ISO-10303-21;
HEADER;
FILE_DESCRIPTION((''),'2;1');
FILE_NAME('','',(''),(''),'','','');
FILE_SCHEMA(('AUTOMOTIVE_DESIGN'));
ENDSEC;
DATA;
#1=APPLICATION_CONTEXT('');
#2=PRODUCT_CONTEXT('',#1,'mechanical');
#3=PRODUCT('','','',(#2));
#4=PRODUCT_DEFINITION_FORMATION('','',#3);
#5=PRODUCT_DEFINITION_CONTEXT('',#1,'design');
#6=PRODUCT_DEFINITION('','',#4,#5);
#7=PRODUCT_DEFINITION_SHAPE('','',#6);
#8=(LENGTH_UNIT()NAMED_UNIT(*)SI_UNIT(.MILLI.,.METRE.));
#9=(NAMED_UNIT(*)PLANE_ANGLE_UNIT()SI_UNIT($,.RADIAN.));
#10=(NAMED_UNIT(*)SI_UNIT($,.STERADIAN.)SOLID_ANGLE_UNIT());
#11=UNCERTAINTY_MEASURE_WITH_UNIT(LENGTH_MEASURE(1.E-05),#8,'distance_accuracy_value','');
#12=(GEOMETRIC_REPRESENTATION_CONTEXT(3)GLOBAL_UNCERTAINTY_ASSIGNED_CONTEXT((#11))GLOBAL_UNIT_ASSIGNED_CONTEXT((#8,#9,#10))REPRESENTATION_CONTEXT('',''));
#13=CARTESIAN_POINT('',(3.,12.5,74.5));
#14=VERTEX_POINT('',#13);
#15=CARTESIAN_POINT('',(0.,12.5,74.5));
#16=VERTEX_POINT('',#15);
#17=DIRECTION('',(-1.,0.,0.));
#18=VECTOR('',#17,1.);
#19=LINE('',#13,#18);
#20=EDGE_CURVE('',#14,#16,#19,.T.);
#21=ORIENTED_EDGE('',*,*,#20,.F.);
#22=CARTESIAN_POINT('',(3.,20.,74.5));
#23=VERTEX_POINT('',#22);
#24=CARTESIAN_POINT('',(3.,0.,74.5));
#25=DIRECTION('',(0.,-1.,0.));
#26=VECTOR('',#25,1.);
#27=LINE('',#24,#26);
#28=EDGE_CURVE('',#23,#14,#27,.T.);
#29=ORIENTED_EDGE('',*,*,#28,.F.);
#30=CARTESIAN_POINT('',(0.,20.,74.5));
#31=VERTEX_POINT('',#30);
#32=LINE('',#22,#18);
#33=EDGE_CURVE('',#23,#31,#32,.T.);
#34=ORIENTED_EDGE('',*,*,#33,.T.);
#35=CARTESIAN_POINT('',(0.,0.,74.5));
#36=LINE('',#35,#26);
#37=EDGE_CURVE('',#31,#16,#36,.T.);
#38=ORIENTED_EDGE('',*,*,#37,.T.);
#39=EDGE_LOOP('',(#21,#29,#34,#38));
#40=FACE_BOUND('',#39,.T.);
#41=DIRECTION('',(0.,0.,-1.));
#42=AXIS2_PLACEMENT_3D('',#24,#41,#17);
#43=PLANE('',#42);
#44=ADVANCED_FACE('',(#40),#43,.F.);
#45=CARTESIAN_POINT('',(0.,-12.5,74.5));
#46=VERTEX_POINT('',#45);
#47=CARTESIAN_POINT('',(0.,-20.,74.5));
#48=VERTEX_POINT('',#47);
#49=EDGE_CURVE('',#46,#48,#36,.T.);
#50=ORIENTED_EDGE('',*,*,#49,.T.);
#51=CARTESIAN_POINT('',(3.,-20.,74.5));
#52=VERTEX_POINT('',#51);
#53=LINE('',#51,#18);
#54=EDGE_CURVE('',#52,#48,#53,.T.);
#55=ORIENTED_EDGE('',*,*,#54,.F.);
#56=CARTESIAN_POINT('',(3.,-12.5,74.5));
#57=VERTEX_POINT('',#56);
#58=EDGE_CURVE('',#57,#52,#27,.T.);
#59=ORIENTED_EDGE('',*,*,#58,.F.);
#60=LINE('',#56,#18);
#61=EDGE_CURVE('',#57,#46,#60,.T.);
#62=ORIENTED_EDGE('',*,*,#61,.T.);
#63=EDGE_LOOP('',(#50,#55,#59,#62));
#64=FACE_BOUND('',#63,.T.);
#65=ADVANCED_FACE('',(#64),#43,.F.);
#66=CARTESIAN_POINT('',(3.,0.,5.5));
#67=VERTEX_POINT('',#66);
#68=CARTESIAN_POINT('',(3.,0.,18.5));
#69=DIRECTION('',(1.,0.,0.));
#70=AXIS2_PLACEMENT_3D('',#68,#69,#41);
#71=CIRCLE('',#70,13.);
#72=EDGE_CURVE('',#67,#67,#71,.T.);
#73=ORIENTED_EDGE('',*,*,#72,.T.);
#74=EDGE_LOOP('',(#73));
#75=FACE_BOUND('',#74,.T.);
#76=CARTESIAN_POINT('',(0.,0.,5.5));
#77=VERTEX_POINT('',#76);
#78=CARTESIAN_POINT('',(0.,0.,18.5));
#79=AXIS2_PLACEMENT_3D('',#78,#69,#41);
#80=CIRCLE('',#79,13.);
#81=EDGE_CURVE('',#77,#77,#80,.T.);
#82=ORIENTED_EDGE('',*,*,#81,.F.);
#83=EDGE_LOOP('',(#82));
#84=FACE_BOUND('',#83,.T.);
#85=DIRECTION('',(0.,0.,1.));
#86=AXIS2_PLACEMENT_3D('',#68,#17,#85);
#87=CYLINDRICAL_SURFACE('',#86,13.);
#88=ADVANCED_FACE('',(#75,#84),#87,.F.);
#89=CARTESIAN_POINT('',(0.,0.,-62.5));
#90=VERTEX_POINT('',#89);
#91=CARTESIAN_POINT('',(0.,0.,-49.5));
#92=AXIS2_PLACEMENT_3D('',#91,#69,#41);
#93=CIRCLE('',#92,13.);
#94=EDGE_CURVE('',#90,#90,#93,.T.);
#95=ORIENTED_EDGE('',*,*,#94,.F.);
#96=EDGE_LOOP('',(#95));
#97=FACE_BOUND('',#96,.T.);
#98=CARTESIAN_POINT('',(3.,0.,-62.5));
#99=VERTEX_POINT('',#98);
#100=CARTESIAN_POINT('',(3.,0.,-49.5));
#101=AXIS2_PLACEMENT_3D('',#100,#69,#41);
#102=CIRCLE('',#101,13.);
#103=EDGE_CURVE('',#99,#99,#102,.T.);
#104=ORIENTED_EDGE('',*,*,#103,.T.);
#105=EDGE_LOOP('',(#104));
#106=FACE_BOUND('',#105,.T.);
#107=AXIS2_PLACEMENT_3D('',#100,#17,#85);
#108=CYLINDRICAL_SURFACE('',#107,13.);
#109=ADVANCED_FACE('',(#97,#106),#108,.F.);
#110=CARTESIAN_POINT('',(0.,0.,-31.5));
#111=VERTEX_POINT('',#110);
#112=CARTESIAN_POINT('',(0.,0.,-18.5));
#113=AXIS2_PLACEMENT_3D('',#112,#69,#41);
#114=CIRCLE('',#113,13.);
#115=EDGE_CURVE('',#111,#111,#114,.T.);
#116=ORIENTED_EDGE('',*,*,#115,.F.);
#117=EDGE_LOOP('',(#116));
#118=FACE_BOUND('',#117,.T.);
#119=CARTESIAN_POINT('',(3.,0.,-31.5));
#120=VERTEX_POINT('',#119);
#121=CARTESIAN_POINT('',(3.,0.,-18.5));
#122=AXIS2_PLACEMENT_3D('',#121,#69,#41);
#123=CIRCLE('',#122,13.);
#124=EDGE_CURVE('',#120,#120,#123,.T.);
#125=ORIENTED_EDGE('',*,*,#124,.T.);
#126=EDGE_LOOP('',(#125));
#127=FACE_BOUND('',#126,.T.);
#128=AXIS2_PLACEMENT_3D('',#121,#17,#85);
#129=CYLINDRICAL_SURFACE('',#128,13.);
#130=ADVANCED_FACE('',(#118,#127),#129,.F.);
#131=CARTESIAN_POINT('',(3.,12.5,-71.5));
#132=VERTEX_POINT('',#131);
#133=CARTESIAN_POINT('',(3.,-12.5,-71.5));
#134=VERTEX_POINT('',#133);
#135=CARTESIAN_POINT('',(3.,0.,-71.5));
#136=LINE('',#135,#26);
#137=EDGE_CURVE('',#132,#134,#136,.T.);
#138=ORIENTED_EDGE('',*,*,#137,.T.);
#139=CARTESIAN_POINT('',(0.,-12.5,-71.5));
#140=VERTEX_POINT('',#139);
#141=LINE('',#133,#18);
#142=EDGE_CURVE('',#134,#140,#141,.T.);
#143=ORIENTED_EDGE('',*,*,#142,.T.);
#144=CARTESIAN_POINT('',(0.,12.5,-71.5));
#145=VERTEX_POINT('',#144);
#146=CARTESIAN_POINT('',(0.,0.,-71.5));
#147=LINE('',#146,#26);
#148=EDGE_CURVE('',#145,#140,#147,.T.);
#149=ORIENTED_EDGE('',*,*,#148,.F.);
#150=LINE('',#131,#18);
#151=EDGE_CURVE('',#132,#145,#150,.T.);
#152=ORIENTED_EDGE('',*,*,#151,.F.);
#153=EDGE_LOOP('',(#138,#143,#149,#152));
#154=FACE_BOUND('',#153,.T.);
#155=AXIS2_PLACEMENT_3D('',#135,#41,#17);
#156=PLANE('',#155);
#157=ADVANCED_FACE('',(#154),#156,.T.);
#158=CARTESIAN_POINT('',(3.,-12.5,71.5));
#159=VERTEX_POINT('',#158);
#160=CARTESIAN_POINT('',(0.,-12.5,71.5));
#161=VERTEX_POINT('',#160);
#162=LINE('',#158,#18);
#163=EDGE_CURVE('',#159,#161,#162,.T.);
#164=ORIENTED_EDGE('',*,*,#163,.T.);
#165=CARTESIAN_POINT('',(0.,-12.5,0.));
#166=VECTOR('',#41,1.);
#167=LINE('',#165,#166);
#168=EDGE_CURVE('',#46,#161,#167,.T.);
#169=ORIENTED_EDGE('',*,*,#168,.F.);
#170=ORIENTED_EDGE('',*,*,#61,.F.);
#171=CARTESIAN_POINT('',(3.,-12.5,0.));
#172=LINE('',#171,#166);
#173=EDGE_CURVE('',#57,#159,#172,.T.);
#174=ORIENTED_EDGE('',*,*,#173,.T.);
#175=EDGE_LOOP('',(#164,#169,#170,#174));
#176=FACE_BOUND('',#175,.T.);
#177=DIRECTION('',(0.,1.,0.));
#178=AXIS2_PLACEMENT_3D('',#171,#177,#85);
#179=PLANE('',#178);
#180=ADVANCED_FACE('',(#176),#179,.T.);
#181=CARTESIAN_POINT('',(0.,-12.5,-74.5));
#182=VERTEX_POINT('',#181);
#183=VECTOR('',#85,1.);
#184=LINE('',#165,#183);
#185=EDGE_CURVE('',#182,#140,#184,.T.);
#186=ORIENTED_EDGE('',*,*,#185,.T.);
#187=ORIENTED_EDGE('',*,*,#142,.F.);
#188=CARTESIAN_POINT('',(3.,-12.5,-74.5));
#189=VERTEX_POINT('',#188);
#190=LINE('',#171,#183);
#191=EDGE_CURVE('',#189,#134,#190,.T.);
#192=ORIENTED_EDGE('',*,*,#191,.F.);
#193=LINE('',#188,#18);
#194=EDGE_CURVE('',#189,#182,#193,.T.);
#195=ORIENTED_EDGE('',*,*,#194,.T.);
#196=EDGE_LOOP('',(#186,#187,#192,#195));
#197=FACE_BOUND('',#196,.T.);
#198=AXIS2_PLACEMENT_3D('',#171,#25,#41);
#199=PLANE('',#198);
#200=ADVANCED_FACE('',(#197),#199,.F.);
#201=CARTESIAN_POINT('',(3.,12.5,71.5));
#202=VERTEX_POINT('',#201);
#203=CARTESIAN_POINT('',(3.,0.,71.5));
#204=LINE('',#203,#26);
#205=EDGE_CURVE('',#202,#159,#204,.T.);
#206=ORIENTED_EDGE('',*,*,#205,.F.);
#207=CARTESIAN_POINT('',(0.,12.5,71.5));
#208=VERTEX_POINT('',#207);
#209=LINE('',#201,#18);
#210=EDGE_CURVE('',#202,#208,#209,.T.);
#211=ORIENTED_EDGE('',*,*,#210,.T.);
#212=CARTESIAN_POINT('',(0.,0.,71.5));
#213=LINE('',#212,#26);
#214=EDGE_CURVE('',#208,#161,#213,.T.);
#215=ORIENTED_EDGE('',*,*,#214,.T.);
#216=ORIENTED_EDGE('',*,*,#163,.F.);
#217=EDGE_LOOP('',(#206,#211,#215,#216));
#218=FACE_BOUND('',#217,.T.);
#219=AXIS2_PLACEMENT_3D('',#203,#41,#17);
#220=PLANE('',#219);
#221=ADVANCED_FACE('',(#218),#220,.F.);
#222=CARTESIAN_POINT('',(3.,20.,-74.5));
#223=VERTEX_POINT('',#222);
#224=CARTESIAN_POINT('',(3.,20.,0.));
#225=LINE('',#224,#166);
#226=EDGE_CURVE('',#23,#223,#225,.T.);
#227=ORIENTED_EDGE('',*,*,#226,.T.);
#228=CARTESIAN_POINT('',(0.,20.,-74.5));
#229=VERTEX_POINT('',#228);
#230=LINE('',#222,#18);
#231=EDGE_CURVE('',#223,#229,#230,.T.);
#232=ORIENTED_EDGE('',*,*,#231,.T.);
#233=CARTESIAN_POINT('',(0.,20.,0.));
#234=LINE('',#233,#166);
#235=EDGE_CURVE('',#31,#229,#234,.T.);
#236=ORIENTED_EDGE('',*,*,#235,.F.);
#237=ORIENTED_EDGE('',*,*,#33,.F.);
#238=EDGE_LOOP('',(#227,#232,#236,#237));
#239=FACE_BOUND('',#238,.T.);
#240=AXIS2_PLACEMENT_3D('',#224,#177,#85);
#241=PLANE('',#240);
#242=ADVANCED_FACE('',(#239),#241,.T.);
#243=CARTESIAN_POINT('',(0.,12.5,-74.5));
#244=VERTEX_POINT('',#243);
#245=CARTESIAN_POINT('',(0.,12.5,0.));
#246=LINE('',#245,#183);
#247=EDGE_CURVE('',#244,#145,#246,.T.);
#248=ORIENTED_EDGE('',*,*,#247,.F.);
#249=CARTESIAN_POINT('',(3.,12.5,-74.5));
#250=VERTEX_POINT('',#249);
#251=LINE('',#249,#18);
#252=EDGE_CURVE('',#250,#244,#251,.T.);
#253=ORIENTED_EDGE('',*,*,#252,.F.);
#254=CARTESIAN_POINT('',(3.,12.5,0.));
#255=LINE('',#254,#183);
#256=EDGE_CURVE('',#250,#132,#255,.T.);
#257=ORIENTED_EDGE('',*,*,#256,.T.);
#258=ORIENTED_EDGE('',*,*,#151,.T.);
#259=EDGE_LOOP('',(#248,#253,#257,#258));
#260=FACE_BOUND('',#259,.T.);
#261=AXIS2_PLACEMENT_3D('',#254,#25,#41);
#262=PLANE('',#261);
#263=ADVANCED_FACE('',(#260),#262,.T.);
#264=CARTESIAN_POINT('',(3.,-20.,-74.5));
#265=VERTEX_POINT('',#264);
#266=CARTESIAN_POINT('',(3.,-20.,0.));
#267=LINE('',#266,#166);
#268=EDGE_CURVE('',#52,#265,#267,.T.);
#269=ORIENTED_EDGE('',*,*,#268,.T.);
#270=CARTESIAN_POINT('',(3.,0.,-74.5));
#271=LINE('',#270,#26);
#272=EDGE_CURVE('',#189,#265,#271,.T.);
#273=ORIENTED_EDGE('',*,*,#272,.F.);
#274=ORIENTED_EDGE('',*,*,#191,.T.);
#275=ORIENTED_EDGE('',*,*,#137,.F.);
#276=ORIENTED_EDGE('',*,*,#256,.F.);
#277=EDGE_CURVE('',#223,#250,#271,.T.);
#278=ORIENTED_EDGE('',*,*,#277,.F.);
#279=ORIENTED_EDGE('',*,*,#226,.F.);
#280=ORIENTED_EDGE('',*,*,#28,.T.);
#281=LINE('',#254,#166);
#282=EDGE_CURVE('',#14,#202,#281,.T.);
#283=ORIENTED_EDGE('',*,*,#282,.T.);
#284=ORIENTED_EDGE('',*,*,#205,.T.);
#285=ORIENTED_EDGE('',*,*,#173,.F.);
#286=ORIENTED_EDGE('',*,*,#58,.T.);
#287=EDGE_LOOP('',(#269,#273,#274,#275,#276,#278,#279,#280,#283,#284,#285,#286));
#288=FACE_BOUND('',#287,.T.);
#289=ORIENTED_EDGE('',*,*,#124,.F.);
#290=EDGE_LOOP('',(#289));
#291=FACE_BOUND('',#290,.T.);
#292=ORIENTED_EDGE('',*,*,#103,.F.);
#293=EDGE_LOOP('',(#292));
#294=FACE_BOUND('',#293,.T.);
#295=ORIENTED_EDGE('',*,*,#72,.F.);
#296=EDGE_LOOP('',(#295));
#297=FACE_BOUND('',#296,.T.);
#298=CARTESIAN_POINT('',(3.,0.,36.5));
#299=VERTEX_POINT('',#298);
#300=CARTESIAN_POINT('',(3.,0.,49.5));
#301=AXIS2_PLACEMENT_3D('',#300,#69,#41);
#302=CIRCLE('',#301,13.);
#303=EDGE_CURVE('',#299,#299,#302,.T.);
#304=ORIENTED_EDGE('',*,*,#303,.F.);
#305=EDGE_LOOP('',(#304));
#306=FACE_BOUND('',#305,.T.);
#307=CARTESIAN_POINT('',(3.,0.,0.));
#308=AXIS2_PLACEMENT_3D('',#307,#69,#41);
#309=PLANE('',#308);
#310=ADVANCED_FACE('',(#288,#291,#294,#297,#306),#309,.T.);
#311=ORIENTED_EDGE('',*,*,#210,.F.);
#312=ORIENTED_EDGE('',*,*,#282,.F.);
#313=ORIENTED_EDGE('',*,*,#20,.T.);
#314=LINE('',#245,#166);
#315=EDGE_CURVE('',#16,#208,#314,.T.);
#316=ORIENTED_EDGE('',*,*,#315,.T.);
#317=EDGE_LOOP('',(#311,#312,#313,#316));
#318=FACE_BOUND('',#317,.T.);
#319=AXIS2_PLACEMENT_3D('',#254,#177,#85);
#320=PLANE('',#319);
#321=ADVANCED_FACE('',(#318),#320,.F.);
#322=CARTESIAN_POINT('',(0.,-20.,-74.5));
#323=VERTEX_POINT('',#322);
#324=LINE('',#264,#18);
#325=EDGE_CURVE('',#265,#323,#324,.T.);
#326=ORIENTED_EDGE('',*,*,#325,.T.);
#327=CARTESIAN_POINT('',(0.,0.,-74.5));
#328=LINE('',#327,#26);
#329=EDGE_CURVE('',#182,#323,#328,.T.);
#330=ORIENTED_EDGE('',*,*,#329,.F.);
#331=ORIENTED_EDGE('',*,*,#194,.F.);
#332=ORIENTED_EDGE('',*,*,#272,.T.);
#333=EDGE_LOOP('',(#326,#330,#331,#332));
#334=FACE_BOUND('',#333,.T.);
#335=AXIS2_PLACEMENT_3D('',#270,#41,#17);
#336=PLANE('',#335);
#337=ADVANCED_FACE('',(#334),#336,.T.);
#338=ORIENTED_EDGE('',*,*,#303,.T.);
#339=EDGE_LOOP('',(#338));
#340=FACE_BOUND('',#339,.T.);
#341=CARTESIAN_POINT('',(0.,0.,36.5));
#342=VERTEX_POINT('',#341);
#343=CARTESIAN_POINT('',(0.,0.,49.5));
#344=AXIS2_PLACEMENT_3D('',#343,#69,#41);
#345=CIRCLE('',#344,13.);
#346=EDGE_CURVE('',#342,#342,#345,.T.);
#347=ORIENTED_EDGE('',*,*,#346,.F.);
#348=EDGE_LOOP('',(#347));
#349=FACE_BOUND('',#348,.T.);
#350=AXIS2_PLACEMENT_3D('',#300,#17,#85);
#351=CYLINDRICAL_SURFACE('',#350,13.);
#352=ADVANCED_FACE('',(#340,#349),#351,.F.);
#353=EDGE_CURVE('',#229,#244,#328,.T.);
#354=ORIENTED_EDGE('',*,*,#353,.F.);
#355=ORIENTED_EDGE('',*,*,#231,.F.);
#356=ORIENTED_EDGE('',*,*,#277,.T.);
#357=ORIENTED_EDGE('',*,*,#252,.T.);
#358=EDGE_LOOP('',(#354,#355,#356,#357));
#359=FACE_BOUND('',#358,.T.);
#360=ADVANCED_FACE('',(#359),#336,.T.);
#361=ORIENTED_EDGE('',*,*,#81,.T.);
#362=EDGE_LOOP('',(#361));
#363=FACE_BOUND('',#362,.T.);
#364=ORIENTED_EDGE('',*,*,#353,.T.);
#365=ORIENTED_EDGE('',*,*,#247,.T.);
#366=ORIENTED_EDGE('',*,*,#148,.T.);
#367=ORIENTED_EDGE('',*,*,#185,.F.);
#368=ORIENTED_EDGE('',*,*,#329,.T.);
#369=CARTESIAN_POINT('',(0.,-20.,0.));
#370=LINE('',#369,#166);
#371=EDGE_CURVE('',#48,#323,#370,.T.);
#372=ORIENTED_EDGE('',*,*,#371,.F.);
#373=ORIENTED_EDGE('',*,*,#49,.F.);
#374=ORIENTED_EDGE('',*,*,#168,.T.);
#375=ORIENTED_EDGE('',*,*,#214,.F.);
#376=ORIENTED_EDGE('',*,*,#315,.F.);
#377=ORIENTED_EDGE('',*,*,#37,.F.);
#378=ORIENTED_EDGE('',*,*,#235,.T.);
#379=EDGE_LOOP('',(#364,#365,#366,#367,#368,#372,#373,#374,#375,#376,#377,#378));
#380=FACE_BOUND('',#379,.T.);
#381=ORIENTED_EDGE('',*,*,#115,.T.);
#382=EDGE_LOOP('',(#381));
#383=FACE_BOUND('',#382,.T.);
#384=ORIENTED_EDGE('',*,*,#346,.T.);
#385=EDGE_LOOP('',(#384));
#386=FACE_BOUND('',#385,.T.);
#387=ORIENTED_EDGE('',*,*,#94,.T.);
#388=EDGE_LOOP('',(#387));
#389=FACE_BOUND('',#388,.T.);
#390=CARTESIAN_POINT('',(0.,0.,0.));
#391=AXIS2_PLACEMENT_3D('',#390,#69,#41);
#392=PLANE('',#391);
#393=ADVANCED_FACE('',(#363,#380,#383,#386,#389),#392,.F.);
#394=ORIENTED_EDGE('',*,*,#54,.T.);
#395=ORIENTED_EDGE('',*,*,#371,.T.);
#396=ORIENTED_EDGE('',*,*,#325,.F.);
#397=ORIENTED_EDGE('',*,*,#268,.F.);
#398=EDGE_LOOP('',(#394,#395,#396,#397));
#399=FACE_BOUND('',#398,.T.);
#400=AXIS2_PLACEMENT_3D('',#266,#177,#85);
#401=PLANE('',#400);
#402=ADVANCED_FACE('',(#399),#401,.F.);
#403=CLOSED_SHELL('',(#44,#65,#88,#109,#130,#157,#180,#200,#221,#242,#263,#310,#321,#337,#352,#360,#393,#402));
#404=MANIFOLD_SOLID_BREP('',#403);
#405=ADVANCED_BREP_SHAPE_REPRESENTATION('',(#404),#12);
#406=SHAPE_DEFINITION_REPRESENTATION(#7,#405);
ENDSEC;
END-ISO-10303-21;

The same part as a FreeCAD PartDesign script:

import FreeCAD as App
import Part
import Sketcher

V = App.Vector


def add_polygon(sketch, points):
    """Adds a closed chain of lines whose ends are joined by coincident constraints."""
    first, n = sketch.GeometryCount, len(points)
    for a, b in zip(points, points[1:] + points[:1]):
        sketch.addGeometry(Part.LineSegment(App.Vector(*a, 0), App.Vector(*b, 0)), False)
    for i in range(n):
        sketch.addConstraint(Sketcher.Constraint("Coincident", first + i, 2, first + (i + 1) % n, 1))

doc = App.newDocument("Part")
params = doc.addObject("Spreadsheet::Sheet", "Params")
for row, (alias, value) in enumerate([
    ("sketch1_diameter", "26 mm"),
    ("sketch1_width", "25 mm"),
    ("sketch1_height", "149 mm"),
    ("sketch1_height2", "3 mm"),
    ("sketch1_width2", "7.5 mm"),
    ("pad1_length", "3 mm"),
], start=1):
    params.set(f"A{row}", alias)
    params.set(f"B{row}", "=" + value)
    params.setAlias(f"B{row}", alias)

body = doc.addObject("PartDesign::Body", "Body")

# Sketch on YZ plane
sketch1 = body.newObject("Sketcher::SketchObject", "Sketch")
sketch1.AttachmentSupport = (doc.getObject("YZ_Plane"), [""])
sketch1.MapMode = "FlatFace"
add_polygon(sketch1, [(20, -74.5), (20, 74.5), (12.5, 74.5), (12.5, 71.5), (-12.5, 71.5), (-12.5, 74.5), (-20, 74.5), (-20, -74.5), (-12.5, -74.5), (-12.5, -71.5), (12.5, -71.5), (12.5, -74.5)])  # lines 0-11
sketch1.addGeometry(Part.Circle(V(0, 49.5, 0), V(0, 0, 1), 13), False)  # 12
sketch1.addGeometry(Part.Circle(V(0, 18.5, 0), V(0, 0, 1), 13), False)  # 13
sketch1.addGeometry(Part.Circle(V(0, -18.5, 0), V(0, 0, 1), 13), False)  # 14
sketch1.addGeometry(Part.Circle(V(0, -49.5, 0), V(0, 0, 1), 13), False)  # 15
sketch1.addConstraint([
    Sketcher.Constraint("Vertical", 0),
    Sketcher.Constraint("Horizontal", 1),
    Sketcher.Constraint("Vertical", 2),
    Sketcher.Constraint("Horizontal", 3),
    Sketcher.Constraint("Vertical", 4),
    Sketcher.Constraint("Horizontal", 5),
    Sketcher.Constraint("Vertical", 6),
    Sketcher.Constraint("Horizontal", 7),
    Sketcher.Constraint("Vertical", 8),
    Sketcher.Constraint("Horizontal", 9),
    Sketcher.Constraint("Vertical", 10),
    Sketcher.Constraint("Horizontal", 11),
    Sketcher.Constraint("Equal", 12, 13),
    Sketcher.Constraint("Equal", 13, 14),
    Sketcher.Constraint("Equal", 14, 15),
    Sketcher.Constraint("Symmetric", 13, 3, 14, 3, -1, 1),
    Sketcher.Constraint("Symmetric", 12, 3, 15, 3, -1, 1),
    Sketcher.Constraint("Symmetric", 0, 2, 6, 2, -1, 1),
    Sketcher.Constraint("Symmetric", 2, 2, 8, 2, -1, 1),
    Sketcher.Constraint("Symmetric", 4, 2, 10, 2, -1, 1),
    Sketcher.Constraint("Symmetric", 1, 2, 4, 2, -2),
    Sketcher.Constraint("PointOnObject", 12, 3, -2),
    Sketcher.Constraint("PointOnObject", 13, 3, -2),
    Sketcher.Constraint("Diameter", 12, 26.0),
    Sketcher.Constraint("DistanceX", 3, 2, 3, 1, 25.0),
    Sketcher.Constraint("DistanceY", 0, 1, 0, 2, 149.0),
    Sketcher.Constraint("DistanceY", 2, 2, 2, 1, 3.0),
    Sketcher.Constraint("DistanceX", 1, 2, 1, 1, 7.5),
    Sketcher.Constraint("DistanceY", 13, 3, 12, 3, 31.0),
    Sketcher.Constraint("DistanceY", 14, 3, 13, 3, 37.0),
])
sketch1.setExpression("Constraints[35]", "Params.sketch1_diameter")
sketch1.setExpression("Constraints[36]", "Params.sketch1_width")
sketch1.setExpression("Constraints[37]", "Params.sketch1_height")
sketch1.setExpression("Constraints[38]", "Params.sketch1_height2")
sketch1.setExpression("Constraints[39]", "Params.sketch1_width2")
pad1 = body.newObject("PartDesign::Pad", "Pad")
pad1.Profile = sketch1
pad1.setExpression("Length", "Params.pad1_length")

doc.recompute()
